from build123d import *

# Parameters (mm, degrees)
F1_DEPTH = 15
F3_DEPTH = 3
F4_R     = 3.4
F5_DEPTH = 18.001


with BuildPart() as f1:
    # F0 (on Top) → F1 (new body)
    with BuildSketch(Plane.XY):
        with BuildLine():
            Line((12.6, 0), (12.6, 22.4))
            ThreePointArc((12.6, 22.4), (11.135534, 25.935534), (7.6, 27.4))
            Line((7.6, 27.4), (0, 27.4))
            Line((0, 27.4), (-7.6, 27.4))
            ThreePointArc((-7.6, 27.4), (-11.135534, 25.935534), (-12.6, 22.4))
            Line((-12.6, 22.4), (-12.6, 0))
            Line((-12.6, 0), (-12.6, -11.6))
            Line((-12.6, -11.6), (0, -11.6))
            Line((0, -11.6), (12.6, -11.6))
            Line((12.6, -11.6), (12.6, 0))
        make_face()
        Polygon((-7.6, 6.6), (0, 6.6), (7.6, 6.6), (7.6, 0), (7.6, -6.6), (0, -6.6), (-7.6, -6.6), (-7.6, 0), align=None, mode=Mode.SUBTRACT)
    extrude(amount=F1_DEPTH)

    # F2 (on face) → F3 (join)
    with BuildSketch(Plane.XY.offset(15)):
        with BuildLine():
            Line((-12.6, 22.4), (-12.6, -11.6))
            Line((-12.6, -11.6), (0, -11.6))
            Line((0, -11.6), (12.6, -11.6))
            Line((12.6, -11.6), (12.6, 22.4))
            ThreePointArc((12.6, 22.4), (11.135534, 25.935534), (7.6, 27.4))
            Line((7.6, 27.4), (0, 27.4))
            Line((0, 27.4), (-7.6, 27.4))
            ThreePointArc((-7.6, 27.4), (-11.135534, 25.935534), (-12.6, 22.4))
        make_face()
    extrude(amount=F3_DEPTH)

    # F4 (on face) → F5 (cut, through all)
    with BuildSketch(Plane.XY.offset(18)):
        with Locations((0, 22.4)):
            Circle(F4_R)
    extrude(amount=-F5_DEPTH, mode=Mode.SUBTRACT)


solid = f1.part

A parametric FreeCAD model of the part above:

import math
import FreeCAD as App
import Part
import Sketcher

doc = App.newDocument("Part")
body = doc.addObject("PartDesign::Body", "Body")

sketch1 = body.newObject("Sketcher::SketchObject", "Sketch")
sketch1.AttachmentSupport = (doc.getObject("XY_Plane"), [""])
sketch1.MapMode = "FlatFace"
sketch1.addGeometry(Part.ArcOfCircle(Part.Circle(App.Vector(7.6, 22.4, 0), App.Vector(0, 0, 1), 5), math.radians(0), math.radians(90)), False)
sketch1.addGeometry(Part.LineSegment(App.Vector(7.6, 27.4, 0), App.Vector(-7.6, 27.4, 0)), False)
sketch1.addGeometry(Part.ArcOfCircle(Part.Circle(App.Vector(-7.6, 22.4, 0), App.Vector(0, 0, 1), 5), math.radians(90), math.radians(180)), False)
sketch1.addGeometry(Part.LineSegment(App.Vector(-12.6, 22.4, 0), App.Vector(-12.6, -11.6, 0)), False)
sketch1.addGeometry(Part.LineSegment(App.Vector(-12.6, -11.6, 0), App.Vector(12.6, -11.6, 0)), False)
sketch1.addGeometry(Part.LineSegment(App.Vector(12.6, -11.6, 0), App.Vector(12.6, 22.4, 0)), False)
sketch1.addGeometry(Part.LineSegment(App.Vector(-7.6, -6.6, 0), App.Vector(-7.6, 6.6, 0)), False)
sketch1.addGeometry(Part.LineSegment(App.Vector(-7.6, 6.6, 0), App.Vector(7.6, 6.6, 0)), False)
sketch1.addGeometry(Part.LineSegment(App.Vector(7.6, 6.6, 0), App.Vector(7.6, -6.6, 0)), False)
sketch1.addGeometry(Part.LineSegment(App.Vector(7.6, -6.6, 0), App.Vector(-7.6, -6.6, 0)), False)
sketch1.addConstraint(Sketcher.Constraint("Tangent", 0, 2, 1, 1))
sketch1.addConstraint(Sketcher.Constraint("Tangent", 1, 2, 2, 1))
sketch1.addConstraint(Sketcher.Constraint("Tangent", 2, 2, 3, 1))
sketch1.addConstraint(Sketcher.Constraint("Coincident", 3, 2, 4, 1))
sketch1.addConstraint(Sketcher.Constraint("Coincident", 4, 2, 5, 1))
sketch1.addConstraint(Sketcher.Constraint("Tangent", 5, 2, 0, 1))
sketch1.addConstraint(Sketcher.Constraint("Coincident", 6, 2, 7, 1))
sketch1.addConstraint(Sketcher.Constraint("Coincident", 7, 2, 8, 1))
sketch1.addConstraint(Sketcher.Constraint("Coincident", 8, 2, 9, 1))
sketch1.addConstraint(Sketcher.Constraint("Coincident", 9, 2, 6, 1))
sketch1.addConstraint(Sketcher.Constraint("Horizontal", 1))
sketch1.addConstraint(Sketcher.Constraint("Vertical", 3))
sketch1.addConstraint(Sketcher.Constraint("Horizontal", 4))
sketch1.addConstraint(Sketcher.Constraint("Vertical", 5))
sketch1.addConstraint(Sketcher.Constraint("Vertical", 6))
sketch1.addConstraint(Sketcher.Constraint("Horizontal", 7))
sketch1.addConstraint(Sketcher.Constraint("Vertical", 8))
sketch1.addConstraint(Sketcher.Constraint("Horizontal", 9))
sketch1.addConstraint(Sketcher.Constraint("Equal", 0, 2))
sketch1.addConstraint(Sketcher.Constraint("Symmetric", 6, 2, 8, 2, -1, 1))
sketch1.addConstraint(Sketcher.Constraint("Vertical", 1, 2, 6, 2))
sketch1.addConstraint(Sketcher.Constraint("Vertical", 0, 2, 7, 2))
sketch1.addConstraint(Sketcher.Constraint("Radius", 0, 5.0))
sketch1.addConstraint(Sketcher.Constraint("DistanceY", 3, 2, 3, 1, 34.0))
sketch1.addConstraint(Sketcher.Constraint("DistanceX", 1, 2, 1, 1, 15.2))
sketch1.addConstraint(Sketcher.Constraint("DistanceY", 6, 1, 6, 2, 13.2))
sketch1.addConstraint(Sketcher.Constraint("DistanceY", 4, 2, 8, 2, 5.0))
pad1 = body.newObject("PartDesign::Pad", "Pad")
pad1.Profile = sketch1
pad1.Length = 15

sketch2 = body.newObject("Sketcher::SketchObject", "Sketch001")
sketch2.AttachmentSupport = (doc.getObject("XY_Plane"), [""])
sketch2.MapMode = "FlatFace"
sketch2.AttachmentOffset = App.Placement(App.Vector(0, 0, 15), App.Rotation())
sketch2.addGeometry(Part.LineSegment(App.Vector(-12.6, 22.4, 0), App.Vector(-12.6, -11.6, 0)), False)
sketch2.addGeometry(Part.LineSegment(App.Vector(-12.6, -11.6, 0), App.Vector(12.6, -11.6, 0)), False)
sketch2.addGeometry(Part.LineSegment(App.Vector(12.6, -11.6, 0), App.Vector(12.6, 22.4, 0)), False)
sketch2.addGeometry(Part.ArcOfCircle(Part.Circle(App.Vector(7.6, 22.4, 0), App.Vector(0, 0, 1), 5), math.radians(0), math.radians(90)), False)
sketch2.addGeometry(Part.LineSegment(App.Vector(7.6, 27.4, 0), App.Vector(-7.6, 27.4, 0)), False)
sketch2.addGeometry(Part.ArcOfCircle(Part.Circle(App.Vector(-7.6, 22.4, 0), App.Vector(0, 0, 1), 5), math.radians(90), math.radians(180)), False)
sketch2.addConstraint(Sketcher.Constraint("Coincident", 0, 2, 1, 1))
sketch2.addConstraint(Sketcher.Constraint("Coincident", 1, 2, 2, 1))
sketch2.addConstraint(Sketcher.Constraint("Tangent", 2, 2, 3, 1))
sketch2.addConstraint(Sketcher.Constraint("Tangent", 3, 2, 4, 1))
sketch2.addConstraint(Sketcher.Constraint("Tangent", 4, 2, 5, 1))
sketch2.addConstraint(Sketcher.Constraint("Tangent", 5, 2, 0, 1))
sketch2.addConstraint(Sketcher.Constraint("Vertical", 0))
sketch2.addConstraint(Sketcher.Constraint("Horizontal", 1))
sketch2.addConstraint(Sketcher.Constraint("Vertical", 2))
sketch2.addConstraint(Sketcher.Constraint("Horizontal", 4))
sketch2.addConstraint(Sketcher.Constraint("Equal", 3, 5))
sketch2.addConstraint(Sketcher.Constraint("Radius", 3, 5.0))
sketch2.addConstraint(Sketcher.Constraint("DistanceY", 0, 2, 0, 1, 34.0))
sketch2.addConstraint(Sketcher.Constraint("DistanceX", 1, 1, 1, 2, 25.2))
sketch2.addConstraint(Sketcher.Constraint("DistanceX", -1, 1, 3, 3, 7.6))
sketch2.addConstraint(Sketcher.Constraint("DistanceY", -1, 1, 3, 3, 22.4))
pad2 = body.newObject("PartDesign::Pad", "Pad001")
pad2.Profile = sketch2
pad2.Length = 3

sketch3 = body.newObject("Sketcher::SketchObject", "Sketch002")
sketch3.AttachmentSupport = (doc.getObject("XY_Plane"), [""])
sketch3.MapMode = "FlatFace"
sketch3.AttachmentOffset = App.Placement(App.Vector(0, 0, 18), App.Rotation())
sketch3.addGeometry(Part.Circle(App.Vector(0, 22.4, 0), App.Vector(0, 0, 1), 3.4), False)
sketch3.addConstraint(Sketcher.Constraint("PointOnObject", 0, 3, -2))
sketch3.addConstraint(Sketcher.Constraint("Diameter", 0, 6.8))
sketch3.addConstraint(Sketcher.Constraint("DistanceY", -1, 1, 0, 3, 22.4))
pocket1 = body.newObject("PartDesign::Pocket", "Pocket")
pocket1.Profile = sketch3
pocket1.Type = "ThroughAll"

doc.recompute()
